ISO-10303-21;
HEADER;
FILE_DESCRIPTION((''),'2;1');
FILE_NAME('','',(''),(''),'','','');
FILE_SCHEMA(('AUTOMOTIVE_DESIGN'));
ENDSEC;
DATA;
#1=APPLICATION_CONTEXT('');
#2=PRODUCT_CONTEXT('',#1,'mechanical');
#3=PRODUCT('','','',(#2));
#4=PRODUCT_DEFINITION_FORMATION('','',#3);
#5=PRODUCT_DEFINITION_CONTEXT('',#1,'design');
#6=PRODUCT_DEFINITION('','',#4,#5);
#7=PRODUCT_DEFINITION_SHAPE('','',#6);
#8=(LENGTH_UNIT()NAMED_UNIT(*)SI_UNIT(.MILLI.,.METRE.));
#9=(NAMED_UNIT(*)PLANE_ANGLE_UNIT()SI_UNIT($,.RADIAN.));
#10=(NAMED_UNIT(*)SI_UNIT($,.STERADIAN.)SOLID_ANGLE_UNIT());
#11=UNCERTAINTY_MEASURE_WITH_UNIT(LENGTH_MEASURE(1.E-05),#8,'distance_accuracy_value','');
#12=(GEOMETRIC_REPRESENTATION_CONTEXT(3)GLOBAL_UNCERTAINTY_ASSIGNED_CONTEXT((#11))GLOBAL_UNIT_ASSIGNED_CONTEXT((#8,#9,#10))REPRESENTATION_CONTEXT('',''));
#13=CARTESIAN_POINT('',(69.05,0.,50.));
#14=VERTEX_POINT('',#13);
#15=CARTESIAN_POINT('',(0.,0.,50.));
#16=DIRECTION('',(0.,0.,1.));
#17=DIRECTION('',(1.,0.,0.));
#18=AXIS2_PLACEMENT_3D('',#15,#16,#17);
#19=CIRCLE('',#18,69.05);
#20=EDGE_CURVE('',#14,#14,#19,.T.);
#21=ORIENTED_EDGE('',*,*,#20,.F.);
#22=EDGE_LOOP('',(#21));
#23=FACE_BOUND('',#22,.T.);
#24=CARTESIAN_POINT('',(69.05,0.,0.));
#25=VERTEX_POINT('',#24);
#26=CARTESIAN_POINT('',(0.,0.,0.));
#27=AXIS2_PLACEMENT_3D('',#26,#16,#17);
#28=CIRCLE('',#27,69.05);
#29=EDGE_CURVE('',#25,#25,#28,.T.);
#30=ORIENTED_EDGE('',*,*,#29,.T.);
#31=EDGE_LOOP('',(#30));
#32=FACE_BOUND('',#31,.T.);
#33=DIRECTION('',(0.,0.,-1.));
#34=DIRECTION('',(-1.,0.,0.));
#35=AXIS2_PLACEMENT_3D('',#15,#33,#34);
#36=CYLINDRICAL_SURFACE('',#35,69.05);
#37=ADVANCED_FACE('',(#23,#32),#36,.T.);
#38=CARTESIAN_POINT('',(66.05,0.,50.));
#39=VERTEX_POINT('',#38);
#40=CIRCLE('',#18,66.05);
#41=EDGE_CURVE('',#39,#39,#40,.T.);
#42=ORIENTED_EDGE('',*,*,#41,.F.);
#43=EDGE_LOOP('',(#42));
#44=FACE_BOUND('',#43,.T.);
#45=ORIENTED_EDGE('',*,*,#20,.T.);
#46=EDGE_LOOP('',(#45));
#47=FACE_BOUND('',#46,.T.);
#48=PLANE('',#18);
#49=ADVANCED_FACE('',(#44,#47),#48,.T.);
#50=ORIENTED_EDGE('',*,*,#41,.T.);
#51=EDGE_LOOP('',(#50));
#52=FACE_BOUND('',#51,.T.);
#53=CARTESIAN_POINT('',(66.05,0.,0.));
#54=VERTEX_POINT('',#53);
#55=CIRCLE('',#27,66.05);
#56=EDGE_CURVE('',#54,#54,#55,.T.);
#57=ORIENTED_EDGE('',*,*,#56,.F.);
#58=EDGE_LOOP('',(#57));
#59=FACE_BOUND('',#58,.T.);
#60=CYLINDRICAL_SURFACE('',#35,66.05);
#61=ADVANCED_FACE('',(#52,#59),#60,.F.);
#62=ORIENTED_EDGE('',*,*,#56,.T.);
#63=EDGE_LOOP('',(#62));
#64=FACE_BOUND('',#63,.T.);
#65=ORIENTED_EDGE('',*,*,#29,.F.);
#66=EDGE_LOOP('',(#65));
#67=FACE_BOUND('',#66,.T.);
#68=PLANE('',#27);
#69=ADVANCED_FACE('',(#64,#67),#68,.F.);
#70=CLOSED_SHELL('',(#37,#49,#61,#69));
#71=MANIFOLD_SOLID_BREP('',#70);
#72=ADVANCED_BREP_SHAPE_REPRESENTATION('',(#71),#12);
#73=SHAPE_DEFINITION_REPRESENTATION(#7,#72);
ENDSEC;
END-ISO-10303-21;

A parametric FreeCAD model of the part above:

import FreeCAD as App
import Part
import Sketcher
Q = App.Units.Quantity

doc = App.newDocument("Part")
body = doc.addObject("PartDesign::Body", "Body")

# Sketch on XY plane
sketch1 = body.newObject("Sketcher::SketchObject", "Sketch")
sketch1.AttachmentSupport = (doc.getObject("XY_Plane"), [""])
sketch1.MapMode = "FlatFace"
sketch1.addGeometry(Part.Circle(App.Vector(0, 0, 0), App.Vector(0, 0, 1), 69), False)
sketch1.addGeometry(Part.Circle(App.Vector(0, 0, 0), App.Vector(0, 0, 1), 66), False)
sketch1.addConstraint(Sketcher.Constraint("Coincident", 0, 3, -1, 1))
sketch1.addConstraint(Sketcher.Constraint("Coincident", 1, 3, -1, 1))
sketch1.addConstraint(Sketcher.Constraint("Diameter", 0, Q("138.1 mm")))
sketch1.addConstraint(Sketcher.Constraint("Diameter", 1, Q("132.1 mm")))
pad1 = body.newObject("PartDesign::Pad", "Pad")
pad1.Profile = sketch1
pad1.Length = 50

doc.recompute()
